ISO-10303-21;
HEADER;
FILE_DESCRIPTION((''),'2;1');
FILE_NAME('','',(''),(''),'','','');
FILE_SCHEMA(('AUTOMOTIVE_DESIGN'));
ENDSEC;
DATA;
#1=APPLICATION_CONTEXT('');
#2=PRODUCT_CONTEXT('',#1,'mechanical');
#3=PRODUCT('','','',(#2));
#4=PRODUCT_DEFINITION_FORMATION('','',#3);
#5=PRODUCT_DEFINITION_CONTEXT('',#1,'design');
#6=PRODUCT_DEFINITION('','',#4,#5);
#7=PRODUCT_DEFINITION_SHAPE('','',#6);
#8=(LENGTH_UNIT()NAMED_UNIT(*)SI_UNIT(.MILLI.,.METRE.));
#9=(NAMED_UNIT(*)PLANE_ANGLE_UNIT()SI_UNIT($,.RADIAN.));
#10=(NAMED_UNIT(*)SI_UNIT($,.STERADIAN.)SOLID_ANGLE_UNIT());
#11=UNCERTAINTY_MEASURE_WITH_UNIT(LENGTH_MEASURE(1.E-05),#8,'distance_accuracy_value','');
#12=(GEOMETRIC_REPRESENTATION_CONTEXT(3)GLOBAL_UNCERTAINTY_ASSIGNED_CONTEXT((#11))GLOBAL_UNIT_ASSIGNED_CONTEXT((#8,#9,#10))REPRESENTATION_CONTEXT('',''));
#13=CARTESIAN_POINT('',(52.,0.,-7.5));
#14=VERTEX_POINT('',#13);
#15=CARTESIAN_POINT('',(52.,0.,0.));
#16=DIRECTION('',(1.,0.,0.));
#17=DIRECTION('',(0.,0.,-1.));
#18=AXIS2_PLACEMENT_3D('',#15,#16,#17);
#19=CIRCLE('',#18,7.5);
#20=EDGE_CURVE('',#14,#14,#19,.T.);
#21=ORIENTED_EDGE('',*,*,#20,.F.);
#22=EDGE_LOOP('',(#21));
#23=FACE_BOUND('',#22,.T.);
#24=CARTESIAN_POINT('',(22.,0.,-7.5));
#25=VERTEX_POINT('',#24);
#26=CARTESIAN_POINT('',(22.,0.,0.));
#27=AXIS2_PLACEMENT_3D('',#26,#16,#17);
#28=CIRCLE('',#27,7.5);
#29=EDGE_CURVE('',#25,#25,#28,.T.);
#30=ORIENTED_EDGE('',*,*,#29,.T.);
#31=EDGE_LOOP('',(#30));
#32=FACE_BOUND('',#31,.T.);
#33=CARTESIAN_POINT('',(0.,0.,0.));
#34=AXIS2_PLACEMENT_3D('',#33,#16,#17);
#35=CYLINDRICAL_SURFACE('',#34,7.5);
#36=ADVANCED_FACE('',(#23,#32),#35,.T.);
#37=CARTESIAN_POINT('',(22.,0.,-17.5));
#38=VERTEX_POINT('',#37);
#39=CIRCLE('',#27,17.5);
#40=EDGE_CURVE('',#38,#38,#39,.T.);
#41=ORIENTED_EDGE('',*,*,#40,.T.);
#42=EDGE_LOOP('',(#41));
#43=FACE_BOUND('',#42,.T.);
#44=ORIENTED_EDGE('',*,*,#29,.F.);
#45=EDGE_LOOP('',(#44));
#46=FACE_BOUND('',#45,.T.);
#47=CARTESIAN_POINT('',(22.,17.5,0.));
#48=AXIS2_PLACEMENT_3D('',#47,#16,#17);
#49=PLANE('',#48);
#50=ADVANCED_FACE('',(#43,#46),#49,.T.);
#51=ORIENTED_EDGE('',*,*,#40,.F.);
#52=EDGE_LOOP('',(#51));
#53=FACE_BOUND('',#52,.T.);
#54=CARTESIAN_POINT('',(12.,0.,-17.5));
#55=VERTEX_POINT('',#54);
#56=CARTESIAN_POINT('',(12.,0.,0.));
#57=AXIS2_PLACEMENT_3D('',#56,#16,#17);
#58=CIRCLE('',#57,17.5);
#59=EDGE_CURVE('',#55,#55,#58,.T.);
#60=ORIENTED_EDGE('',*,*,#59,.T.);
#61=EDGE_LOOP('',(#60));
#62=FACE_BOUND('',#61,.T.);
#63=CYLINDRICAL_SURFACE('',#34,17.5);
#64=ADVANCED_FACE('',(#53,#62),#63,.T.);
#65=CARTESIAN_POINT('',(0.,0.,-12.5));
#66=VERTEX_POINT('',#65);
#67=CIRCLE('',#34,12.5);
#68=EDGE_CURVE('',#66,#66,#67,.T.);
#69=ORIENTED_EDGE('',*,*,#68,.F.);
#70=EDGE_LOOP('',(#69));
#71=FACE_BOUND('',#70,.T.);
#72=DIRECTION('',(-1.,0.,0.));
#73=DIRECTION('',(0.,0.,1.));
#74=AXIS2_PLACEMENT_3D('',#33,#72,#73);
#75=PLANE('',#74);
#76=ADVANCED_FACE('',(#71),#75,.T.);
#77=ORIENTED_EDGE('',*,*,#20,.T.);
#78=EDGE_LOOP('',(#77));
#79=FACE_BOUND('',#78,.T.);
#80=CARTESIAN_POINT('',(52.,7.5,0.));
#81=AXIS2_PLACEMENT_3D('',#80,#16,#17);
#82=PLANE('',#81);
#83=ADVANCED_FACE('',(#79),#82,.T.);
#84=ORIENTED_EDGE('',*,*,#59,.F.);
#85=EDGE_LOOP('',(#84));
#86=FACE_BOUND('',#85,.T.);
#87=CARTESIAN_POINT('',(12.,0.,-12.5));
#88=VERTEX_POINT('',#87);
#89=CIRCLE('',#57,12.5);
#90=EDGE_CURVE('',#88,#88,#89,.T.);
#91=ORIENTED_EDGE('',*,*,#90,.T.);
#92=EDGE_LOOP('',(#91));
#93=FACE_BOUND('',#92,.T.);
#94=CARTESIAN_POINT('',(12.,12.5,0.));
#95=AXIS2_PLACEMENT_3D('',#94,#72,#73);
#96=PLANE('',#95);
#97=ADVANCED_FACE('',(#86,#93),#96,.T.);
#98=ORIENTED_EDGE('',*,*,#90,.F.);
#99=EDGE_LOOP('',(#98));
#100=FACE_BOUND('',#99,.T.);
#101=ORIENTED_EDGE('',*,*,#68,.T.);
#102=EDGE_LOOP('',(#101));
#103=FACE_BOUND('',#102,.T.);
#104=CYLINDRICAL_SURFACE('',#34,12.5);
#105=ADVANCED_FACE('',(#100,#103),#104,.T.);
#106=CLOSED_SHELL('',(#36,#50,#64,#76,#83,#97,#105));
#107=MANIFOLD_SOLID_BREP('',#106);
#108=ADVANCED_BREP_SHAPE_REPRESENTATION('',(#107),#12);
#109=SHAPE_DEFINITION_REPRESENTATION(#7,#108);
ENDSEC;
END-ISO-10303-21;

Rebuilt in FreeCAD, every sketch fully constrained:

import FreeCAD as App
import Part
import Sketcher

V = App.Vector

doc = App.newDocument("Part")
params = doc.addObject("Spreadsheet::Sheet", "Params")
for row, (alias, value) in enumerate([
    ("sketch1_width", "52 mm"),
    ("sketch1_width2", "30 mm"),
    ("sketch1_width3", "10 mm"),
    ("sketch1_height", "5 mm"),
    ("sketch1_height2", "12.5 mm"),
    ("revolution_angle", "360 deg"),
], start=1):
    params.set(f"A{row}", alias)
    params.set(f"B{row}", "=" + value)
    params.setAlias(f"B{row}", alias)

body = doc.addObject("PartDesign::Body", "Body")

# Sketch on XY plane
sketch1 = doc.addObject("Sketcher::SketchObject", "Sketch")
body.addObject(sketch1)
sketch1.AttachmentSupport = (doc.XY_Plane, [""])
sketch1.MapMode = "FlatFace"
sketch1.addGeometry(Part.LineSegment(V(0, 12.5, 0), V(0, 0, 0)), False)
sketch1.addGeometry(Part.LineSegment(V(0, 0, 0), V(52, 0, 0)), False)
sketch1.addGeometry(Part.LineSegment(V(52, 0, 0), V(52, 7.5, 0)), False)
sketch1.addGeometry(Part.LineSegment(V(52, 7.5, 0), V(22, 7.5, 0)), False)
sketch1.addGeometry(Part.LineSegment(V(22, 7.5, 0), V(22, 17.5, 0)), False)
sketch1.addGeometry(Part.LineSegment(V(22, 17.5, 0), V(12, 17.5, 0)), False)
sketch1.addGeometry(Part.LineSegment(V(12, 17.5, 0), V(12, 12.5, 0)), False)
sketch1.addGeometry(Part.LineSegment(V(12, 12.5, 0), V(0, 12.5, 0)), False)
sketch1.addConstraint(Sketcher.Constraint("Coincident", 0, 2, 1, 1))
sketch1.addConstraint(Sketcher.Constraint("Coincident", 1, 2, 2, 1))
sketch1.addConstraint(Sketcher.Constraint("Coincident", 2, 2, 3, 1))
sketch1.addConstraint(Sketcher.Constraint("Coincident", 3, 2, 4, 1))
sketch1.addConstraint(Sketcher.Constraint("Coincident", 4, 2, 5, 1))
sketch1.addConstraint(Sketcher.Constraint("Coincident", 5, 2, 6, 1))
sketch1.addConstraint(Sketcher.Constraint("Coincident", 6, 2, 7, 1))
sketch1.addConstraint(Sketcher.Constraint("Coincident", 7, 2, 0, 1))
sketch1.addConstraint(Sketcher.Constraint("Vertical", 0))
sketch1.addConstraint(Sketcher.Constraint("Horizontal", 1))
sketch1.addConstraint(Sketcher.Constraint("Vertical", 2))
sketch1.addConstraint(Sketcher.Constraint("Horizontal", 3))
sketch1.addConstraint(Sketcher.Constraint("Vertical", 4))
sketch1.addConstraint(Sketcher.Constraint("Horizontal", 5))
sketch1.addConstraint(Sketcher.Constraint("Vertical", 6))
sketch1.addConstraint(Sketcher.Constraint("Horizontal", 7))
sketch1.addConstraint(Sketcher.Constraint("Coincident", 0, 2, -1, 1))
sketch1.addConstraint(Sketcher.Constraint("Equal", 5, 4))
sketch1.addConstraint(Sketcher.Constraint("DistanceX", 1, 1, 1, 2, 52.0))
sketch1.addConstraint(Sketcher.Constraint("DistanceX", 3, 2, 3, 1, 30.0))
sketch1.addConstraint(Sketcher.Constraint("DistanceX", 5, 2, 5, 1, 10.0))
sketch1.addConstraint(Sketcher.Constraint("DistanceY", 6, 2, 6, 1, 5.0))
sketch1.addConstraint(Sketcher.Constraint("DistanceY", 0, 2, 0, 1, 12.5))
sketch1.setExpression("Constraints[18]", "Params.sketch1_width")
sketch1.setExpression("Constraints[19]", "Params.sketch1_width2")
sketch1.setExpression("Constraints[20]", "Params.sketch1_width3")
sketch1.setExpression("Constraints[21]", "Params.sketch1_height")
sketch1.setExpression("Constraints[22]", "Params.sketch1_height2")
revolution = doc.addObject("PartDesign::Revolution", "Revolution")
body.addObject(revolution)
revolution.Profile = sketch1
revolution.ReferenceAxis = (sketch1, ["H_Axis"])
revolution.setExpression("Angle", "Params.revolution_angle")

doc.recompute()
